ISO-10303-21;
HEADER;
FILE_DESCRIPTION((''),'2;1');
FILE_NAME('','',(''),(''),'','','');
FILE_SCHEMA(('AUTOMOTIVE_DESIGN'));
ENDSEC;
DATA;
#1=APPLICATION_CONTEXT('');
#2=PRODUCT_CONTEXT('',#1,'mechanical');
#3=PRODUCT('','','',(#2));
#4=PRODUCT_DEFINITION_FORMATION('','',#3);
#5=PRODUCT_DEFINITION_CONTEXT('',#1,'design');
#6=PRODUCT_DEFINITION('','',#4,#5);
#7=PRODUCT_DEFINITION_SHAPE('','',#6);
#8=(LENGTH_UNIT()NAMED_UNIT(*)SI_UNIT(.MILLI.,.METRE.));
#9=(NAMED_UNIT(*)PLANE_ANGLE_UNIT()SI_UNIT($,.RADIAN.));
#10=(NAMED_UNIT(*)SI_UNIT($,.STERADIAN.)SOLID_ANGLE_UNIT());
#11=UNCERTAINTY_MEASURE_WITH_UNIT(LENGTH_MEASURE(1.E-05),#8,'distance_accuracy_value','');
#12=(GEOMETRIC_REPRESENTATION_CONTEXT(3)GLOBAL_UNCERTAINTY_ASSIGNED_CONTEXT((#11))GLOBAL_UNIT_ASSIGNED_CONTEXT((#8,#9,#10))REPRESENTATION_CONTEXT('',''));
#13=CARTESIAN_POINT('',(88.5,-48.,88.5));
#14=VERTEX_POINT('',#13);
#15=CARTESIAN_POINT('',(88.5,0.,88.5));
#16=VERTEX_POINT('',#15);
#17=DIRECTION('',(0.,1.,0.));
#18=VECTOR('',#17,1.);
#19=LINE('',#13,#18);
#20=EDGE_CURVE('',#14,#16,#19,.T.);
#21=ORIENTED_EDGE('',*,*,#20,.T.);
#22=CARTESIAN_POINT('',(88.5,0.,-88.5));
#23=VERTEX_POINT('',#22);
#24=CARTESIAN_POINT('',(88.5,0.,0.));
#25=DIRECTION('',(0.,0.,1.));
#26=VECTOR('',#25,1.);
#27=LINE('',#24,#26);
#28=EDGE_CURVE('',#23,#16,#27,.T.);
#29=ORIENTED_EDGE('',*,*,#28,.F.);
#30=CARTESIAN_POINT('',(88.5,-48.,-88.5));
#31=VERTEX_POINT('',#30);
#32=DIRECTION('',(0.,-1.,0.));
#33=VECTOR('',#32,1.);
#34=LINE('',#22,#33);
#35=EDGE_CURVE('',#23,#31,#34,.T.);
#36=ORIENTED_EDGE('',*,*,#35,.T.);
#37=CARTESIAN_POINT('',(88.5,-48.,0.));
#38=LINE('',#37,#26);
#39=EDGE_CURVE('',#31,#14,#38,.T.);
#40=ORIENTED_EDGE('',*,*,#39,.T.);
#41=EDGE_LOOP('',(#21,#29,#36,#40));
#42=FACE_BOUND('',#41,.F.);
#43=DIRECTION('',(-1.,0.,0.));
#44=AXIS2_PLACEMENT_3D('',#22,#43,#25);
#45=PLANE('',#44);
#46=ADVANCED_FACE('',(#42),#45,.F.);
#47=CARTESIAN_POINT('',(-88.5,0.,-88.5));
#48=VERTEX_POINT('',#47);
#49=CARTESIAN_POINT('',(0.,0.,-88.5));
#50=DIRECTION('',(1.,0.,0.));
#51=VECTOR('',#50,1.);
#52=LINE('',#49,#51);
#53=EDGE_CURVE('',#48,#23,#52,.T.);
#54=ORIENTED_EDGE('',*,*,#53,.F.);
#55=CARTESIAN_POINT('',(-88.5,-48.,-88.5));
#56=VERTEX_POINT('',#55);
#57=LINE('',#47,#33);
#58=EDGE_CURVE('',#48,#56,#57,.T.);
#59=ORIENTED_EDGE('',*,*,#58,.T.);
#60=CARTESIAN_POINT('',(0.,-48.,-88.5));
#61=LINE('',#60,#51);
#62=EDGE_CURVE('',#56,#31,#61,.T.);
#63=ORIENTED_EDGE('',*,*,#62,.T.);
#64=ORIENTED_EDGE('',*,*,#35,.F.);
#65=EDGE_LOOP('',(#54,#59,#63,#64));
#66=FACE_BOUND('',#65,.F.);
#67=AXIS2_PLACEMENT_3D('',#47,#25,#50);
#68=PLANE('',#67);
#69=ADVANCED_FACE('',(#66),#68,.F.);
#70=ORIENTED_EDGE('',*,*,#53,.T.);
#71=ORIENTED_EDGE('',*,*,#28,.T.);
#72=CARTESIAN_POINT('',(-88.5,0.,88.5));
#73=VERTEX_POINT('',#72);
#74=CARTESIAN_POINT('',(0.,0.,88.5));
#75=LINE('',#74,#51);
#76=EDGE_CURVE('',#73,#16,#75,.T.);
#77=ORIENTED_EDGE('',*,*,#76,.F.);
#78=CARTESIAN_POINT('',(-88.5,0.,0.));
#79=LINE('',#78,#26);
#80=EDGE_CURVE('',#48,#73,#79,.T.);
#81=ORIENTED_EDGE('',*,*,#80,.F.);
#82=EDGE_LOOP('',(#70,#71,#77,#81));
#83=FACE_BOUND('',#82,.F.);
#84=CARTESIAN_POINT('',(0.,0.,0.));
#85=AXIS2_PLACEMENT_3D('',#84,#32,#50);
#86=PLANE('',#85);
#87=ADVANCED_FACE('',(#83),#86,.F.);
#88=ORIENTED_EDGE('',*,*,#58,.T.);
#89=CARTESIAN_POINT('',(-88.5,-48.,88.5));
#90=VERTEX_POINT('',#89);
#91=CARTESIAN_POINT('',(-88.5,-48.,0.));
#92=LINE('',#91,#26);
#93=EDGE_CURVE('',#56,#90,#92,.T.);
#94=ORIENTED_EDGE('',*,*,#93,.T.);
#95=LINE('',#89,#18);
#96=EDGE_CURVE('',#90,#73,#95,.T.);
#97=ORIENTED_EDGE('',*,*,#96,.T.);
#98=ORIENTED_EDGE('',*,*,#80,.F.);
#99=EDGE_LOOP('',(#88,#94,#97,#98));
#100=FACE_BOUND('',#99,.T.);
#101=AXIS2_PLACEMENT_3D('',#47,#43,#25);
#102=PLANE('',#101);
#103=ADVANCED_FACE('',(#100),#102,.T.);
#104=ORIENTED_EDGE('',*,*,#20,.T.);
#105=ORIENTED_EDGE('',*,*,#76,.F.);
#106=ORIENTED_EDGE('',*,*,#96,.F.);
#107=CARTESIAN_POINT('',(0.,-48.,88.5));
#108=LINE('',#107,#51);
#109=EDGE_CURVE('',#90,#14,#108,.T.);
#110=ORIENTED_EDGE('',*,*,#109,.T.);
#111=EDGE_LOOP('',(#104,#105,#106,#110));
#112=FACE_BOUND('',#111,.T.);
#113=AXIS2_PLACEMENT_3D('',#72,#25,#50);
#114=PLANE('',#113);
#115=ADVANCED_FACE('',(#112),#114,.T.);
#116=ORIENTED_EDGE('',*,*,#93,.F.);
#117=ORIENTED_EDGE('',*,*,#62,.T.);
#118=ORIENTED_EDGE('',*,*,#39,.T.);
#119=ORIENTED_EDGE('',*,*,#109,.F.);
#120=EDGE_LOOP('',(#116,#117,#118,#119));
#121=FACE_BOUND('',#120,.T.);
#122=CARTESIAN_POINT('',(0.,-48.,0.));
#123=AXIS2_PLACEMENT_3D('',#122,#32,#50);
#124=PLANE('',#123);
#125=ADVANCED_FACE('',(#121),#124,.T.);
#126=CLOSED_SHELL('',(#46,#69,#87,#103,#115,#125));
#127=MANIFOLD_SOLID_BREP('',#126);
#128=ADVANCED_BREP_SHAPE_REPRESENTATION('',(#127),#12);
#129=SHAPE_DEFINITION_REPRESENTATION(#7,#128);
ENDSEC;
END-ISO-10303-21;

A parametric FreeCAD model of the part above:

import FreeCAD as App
import Part
import Sketcher
from FreeCAD import Vector
Q = App.Units.Quantity


def add_polygon(sketch, points):
    """Adds a closed chain of lines whose ends are joined by coincident constraints."""
    first, n = sketch.GeometryCount, len(points)
    for a, b in zip(points, points[1:] + points[:1]):
        sketch.addGeometry(Part.LineSegment(App.Vector(*a, 0), App.Vector(*b, 0)), False)
    for i in range(n):
        sketch.addConstraint(Sketcher.Constraint("Coincident", first + i, 2, first + (i + 1) % n, 1))

doc = App.newDocument("Part")
body = doc.addObject("PartDesign::Body", "Body")

# Sketch on XZ plane
sketch1 = doc.addObject("Sketcher::SketchObject", "Sketch")
body.addObject(sketch1)
sketch1.AttachmentSupport = (doc.XZ_Plane, [""])
sketch1.MapMode = "FlatFace"
add_polygon(sketch1, [(-88.5, 88.5), (-88.5, -88.5), (88.5, -88.5), (88.5, 88.5)])  # lines 0-3
sketch1.addConstraint([
    Sketcher.Constraint("Vertical", 0),
    Sketcher.Constraint("Horizontal", 1),
    Sketcher.Constraint("Vertical", 2),
    Sketcher.Constraint("Horizontal", 3),
    Sketcher.Constraint("Symmetric", 0, 2, 2, 2, -1, 1),
    Sketcher.Constraint("Equal", 3, 0),
    Sketcher.Constraint("DistanceX", 1, 1, 1, 2, Q("177 mm")),
])
pad1 = doc.addObject("PartDesign::Pad", "Pad")
body.addObject(pad1)
pad1.Profile = sketch1
pad1.Length = 48

# Sketch on XZ plane
sketch2 = doc.addObject("Sketcher::SketchObject", "Sketch001")
body.addObject(sketch2)
sketch2.AttachmentSupport = (doc.XZ_Plane, [""])
sketch2.MapMode = "FlatFace"
add_polygon(sketch2, [(-88.5, 88.5), (-88.5, -88.5), (88.5, -88.5), (88.5, 88.5)])  # lines 0-3
sketch2.addConstraint([
    Sketcher.Constraint("Vertical", 0),
    Sketcher.Constraint("Horizontal", 1),
    Sketcher.Constraint("Vertical", 2),
    Sketcher.Constraint("Horizontal", 3),
    Sketcher.Constraint("Symmetric", 0, 2, 2, 2, -1, 1),
    Sketcher.Constraint("Equal", 3, 0),
    Sketcher.Constraint("DistanceX", 1, 1, 1, 2, Q("177 mm")),
])
pad2 = doc.addObject("PartDesign::Pad", "Pad001")
body.addObject(pad2)
pad2.Profile = sketch2
pad2.Length = 25

doc.recompute()
